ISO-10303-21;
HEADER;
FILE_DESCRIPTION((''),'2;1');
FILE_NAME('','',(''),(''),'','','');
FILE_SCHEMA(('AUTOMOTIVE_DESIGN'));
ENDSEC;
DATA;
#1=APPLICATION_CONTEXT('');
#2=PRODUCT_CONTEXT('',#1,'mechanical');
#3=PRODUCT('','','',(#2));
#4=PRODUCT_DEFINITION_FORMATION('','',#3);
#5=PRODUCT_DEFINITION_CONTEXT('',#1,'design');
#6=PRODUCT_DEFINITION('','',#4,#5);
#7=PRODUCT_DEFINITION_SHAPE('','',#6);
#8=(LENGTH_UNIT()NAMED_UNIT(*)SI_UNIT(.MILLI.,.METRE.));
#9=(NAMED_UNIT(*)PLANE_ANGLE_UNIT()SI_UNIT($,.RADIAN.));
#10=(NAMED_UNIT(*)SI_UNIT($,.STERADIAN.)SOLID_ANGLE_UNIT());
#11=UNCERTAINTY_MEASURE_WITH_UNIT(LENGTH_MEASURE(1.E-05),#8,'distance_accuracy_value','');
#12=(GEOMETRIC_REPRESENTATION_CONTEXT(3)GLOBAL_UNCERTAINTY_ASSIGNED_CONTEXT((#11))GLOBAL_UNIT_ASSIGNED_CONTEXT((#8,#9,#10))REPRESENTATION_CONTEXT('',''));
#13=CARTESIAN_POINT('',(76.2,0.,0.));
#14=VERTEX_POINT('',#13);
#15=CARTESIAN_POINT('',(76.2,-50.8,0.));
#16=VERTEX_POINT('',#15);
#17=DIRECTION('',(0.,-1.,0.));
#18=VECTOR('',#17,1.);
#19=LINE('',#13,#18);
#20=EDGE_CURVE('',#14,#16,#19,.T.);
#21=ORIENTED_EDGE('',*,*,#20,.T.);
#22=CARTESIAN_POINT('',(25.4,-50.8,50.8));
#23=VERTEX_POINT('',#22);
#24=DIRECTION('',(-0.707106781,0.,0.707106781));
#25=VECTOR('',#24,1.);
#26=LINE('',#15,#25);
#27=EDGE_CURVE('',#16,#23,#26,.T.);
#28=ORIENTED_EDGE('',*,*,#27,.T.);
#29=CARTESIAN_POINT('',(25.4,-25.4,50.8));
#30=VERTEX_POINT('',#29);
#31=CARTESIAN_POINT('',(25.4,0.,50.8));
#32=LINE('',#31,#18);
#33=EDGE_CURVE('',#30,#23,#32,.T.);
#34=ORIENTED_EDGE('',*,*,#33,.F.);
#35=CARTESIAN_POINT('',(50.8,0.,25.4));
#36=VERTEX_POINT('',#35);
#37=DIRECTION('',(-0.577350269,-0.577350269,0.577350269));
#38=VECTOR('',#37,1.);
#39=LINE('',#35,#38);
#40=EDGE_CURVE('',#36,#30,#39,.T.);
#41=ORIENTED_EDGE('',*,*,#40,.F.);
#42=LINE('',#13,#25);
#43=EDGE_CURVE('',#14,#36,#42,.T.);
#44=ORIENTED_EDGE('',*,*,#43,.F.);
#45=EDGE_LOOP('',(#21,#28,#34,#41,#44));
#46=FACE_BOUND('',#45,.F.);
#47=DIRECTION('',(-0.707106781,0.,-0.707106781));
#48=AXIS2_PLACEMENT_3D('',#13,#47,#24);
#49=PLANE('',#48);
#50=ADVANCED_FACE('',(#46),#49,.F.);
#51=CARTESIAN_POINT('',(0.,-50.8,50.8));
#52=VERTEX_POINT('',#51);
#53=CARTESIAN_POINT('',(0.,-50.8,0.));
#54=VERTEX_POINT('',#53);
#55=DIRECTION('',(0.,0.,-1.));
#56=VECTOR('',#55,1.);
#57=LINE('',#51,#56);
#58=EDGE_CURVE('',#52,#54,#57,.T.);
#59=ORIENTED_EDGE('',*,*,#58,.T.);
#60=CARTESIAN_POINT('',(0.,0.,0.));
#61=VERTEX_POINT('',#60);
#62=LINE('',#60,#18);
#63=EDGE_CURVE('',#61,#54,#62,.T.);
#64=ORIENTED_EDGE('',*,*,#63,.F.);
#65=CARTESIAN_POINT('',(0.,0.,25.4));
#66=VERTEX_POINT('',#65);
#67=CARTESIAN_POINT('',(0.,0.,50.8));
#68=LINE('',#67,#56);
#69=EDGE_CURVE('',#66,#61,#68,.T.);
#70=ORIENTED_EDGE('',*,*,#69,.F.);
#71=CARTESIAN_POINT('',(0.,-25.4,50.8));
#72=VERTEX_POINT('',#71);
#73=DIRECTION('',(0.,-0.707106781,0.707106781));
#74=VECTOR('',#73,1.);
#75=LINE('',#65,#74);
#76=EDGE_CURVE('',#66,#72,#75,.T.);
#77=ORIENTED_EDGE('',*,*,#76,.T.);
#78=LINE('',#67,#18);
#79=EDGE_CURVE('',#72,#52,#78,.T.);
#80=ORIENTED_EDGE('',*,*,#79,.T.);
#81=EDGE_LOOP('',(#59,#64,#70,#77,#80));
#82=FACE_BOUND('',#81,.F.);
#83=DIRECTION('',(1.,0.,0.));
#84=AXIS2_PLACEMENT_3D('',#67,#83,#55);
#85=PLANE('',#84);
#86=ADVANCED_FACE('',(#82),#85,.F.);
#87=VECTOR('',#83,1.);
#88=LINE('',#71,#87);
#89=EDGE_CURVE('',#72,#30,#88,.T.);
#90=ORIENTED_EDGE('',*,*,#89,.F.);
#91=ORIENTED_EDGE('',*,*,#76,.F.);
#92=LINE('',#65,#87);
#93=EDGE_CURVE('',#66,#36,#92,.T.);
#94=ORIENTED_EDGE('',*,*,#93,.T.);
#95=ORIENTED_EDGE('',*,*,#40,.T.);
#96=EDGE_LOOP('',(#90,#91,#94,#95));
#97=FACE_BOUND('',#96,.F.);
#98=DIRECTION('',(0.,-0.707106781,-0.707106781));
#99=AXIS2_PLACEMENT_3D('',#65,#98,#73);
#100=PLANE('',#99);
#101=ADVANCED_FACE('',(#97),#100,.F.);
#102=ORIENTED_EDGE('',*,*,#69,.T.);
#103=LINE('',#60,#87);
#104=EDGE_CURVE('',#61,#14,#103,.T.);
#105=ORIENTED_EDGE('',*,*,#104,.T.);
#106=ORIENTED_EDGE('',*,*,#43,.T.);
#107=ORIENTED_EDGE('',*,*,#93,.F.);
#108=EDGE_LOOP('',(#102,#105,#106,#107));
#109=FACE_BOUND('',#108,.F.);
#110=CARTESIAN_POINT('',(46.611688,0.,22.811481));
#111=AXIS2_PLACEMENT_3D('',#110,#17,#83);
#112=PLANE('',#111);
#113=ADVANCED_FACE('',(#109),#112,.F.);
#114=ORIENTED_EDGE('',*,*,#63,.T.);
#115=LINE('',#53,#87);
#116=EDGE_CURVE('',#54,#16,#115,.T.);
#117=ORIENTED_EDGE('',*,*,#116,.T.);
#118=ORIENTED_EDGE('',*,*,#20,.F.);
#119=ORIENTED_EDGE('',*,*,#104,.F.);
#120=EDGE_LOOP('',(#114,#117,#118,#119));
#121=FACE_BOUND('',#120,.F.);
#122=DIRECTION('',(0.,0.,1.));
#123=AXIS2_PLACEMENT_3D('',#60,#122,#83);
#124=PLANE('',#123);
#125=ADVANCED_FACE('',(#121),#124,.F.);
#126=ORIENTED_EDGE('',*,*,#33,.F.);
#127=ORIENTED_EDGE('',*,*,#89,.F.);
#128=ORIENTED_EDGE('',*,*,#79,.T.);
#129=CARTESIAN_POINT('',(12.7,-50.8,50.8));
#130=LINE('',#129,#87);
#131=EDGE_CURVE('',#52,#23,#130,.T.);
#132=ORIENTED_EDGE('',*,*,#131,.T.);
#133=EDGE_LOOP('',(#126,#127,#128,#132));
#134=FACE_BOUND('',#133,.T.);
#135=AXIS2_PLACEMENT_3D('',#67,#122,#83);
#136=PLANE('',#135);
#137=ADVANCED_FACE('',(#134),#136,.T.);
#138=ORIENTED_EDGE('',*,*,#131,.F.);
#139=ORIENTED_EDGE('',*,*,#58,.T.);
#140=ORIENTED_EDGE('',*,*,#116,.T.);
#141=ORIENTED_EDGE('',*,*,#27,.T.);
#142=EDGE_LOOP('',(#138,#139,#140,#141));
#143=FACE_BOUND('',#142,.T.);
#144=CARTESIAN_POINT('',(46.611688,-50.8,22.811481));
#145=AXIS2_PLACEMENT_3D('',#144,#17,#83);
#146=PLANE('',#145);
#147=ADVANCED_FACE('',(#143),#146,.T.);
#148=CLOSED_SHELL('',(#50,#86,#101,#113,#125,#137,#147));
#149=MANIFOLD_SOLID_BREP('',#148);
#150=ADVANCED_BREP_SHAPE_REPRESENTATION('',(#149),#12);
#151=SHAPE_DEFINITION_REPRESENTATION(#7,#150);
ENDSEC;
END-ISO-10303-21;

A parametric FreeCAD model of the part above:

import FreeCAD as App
import Part
import Sketcher

V = App.Vector
Q = App.Units.Quantity


def add_polygon(sketch, points):
    """Adds a closed chain of lines whose ends are joined by coincident constraints."""
    first, n = sketch.GeometryCount, len(points)
    for a, b in zip(points, points[1:] + points[:1]):
        sketch.addGeometry(Part.LineSegment(App.Vector(*a, 0), App.Vector(*b, 0)), False)
    for i in range(n):
        sketch.addConstraint(Sketcher.Constraint("Coincident", first + i, 2, first + (i + 1) % n, 1))

doc = App.newDocument("Part")
body = doc.addObject("PartDesign::Body", "Body")

sketch1 = body.newObject("Sketcher::SketchObject", "Sketch")
sketch1.AttachmentSupport = (doc.getObject("XZ_Plane"), [""])
sketch1.MapMode = "FlatFace"
add_polygon(sketch1, [(76, 0), (25, 51), (0, 51), (0, 0)])
sketch1.addConstraint(Sketcher.Constraint("Horizontal", 1))
sketch1.addConstraint(Sketcher.Constraint("Vertical", 2))
sketch1.addConstraint(Sketcher.Constraint("Horizontal", 3))
sketch1.addConstraint(Sketcher.Constraint("Coincident", 2, 2, -1, 1))
sketch1.addConstraint(Sketcher.Constraint("DistanceX", 1, 2, 1, 1, Q("1 in")))
sketch1.addConstraint(Sketcher.Constraint("DistanceX", 3, 1, 3, 2, Q("3 in")))
sketch1.addConstraint(Sketcher.Constraint("DistanceY", 2, 2, 2, 1, Q("2 in")))
pad1 = body.newObject("PartDesign::Pad", "Pad")
pad1.Profile = sketch1
pad1.Length = Q("2 in")

sketch2 = body.newObject("Sketcher::SketchObject", "Sketch001")
sketch2.AttachmentSupport = (doc.getObject("YZ_Plane"), [""])
sketch2.MapMode = "FlatFace"
add_polygon(sketch2, [(0, 25), (-25, 51), (0, 51)])
sketch2.addConstraint(Sketcher.Constraint("Horizontal", 1))
sketch2.addConstraint(Sketcher.Constraint("Vertical", 2))
sketch2.addConstraint(Sketcher.Constraint("PointOnObject", 1, 2, -2))
sketch2.addConstraint(Sketcher.Constraint("Equal", 1, 2))
sketch2.addConstraint(Sketcher.Constraint("DistanceX", 1, 1, 1, 2, Q("1 in")))
sketch2.addConstraint(Sketcher.Constraint("DistanceY", -1, 1, 0, 2, Q("2 in")))
pocket1 = body.newObject("PartDesign::Pocket", "Pocket")
pocket1.Profile = sketch2
pocket1.Type = "ThroughAll"
pocket1.Reversed = True

doc.recompute()
